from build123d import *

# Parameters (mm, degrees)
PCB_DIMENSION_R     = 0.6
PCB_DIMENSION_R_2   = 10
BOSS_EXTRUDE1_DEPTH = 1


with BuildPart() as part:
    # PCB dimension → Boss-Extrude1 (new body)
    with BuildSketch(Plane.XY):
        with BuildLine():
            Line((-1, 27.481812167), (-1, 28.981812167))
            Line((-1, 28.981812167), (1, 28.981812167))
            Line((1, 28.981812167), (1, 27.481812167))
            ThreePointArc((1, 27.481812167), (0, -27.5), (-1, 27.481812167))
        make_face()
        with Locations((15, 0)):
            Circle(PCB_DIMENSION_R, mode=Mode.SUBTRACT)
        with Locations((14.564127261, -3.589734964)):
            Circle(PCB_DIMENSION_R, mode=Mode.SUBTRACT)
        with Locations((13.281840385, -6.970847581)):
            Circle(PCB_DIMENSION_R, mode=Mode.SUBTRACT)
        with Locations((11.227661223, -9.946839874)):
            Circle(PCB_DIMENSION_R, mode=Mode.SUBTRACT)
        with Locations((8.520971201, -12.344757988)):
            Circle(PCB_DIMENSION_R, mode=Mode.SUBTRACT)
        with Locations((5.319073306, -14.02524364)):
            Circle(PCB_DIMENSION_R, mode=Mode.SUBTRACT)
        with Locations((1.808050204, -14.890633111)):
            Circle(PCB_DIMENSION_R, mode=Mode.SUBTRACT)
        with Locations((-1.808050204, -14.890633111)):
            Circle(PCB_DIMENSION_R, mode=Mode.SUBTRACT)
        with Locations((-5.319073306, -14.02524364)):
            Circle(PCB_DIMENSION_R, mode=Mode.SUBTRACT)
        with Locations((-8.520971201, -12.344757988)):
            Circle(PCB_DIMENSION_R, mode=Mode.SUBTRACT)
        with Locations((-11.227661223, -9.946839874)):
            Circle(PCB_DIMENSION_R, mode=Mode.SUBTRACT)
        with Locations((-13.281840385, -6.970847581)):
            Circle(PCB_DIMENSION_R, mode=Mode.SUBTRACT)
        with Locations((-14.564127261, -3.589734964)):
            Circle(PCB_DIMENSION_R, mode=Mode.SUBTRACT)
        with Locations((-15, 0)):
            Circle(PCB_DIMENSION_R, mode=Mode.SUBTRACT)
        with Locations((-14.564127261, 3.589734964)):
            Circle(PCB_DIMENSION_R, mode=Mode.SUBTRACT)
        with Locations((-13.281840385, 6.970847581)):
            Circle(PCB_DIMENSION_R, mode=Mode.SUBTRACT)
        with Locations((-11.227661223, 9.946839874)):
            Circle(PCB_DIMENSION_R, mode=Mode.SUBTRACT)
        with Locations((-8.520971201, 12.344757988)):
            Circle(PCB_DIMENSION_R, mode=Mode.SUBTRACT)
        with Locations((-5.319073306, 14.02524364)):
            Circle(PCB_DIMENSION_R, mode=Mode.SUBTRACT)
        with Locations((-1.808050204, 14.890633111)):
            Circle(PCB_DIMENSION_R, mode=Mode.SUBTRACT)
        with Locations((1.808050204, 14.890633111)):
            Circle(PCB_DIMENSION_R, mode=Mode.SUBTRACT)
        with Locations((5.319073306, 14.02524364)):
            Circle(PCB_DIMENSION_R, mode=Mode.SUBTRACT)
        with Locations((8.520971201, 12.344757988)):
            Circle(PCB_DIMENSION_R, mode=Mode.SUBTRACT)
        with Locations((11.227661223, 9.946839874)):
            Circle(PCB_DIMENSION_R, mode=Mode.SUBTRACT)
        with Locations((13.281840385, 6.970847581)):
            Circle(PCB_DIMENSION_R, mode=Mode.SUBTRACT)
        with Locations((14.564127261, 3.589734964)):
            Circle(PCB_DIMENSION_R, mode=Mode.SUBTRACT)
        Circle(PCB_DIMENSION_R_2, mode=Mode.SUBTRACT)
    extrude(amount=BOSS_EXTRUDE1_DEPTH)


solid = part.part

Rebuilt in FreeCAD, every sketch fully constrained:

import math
import FreeCAD as App
import Part
import Sketcher

V = App.Vector

doc = App.newDocument("Part")
params = doc.addObject("Spreadsheet::Sheet", "Params")
for row, (alias, value) in enumerate([
    ("sketch1_diameter", "20 mm"),
    ("sketch1_diameter2", "1.2 mm"),
    ("sketch1_radius", "27.5 mm"),
    ("sketch1_width", "2 mm"),
    ("sketch1_height", "1.5 mm"),
    ("pad1_length", "1 mm"),
], start=1):
    params.set(f"A{row}", alias)
    params.set(f"B{row}", "=" + value)
    params.setAlias(f"B{row}", alias)

body = doc.addObject("PartDesign::Body", "Body")

# Sketch on XY plane
sketch1 = body.newObject("Sketcher::SketchObject", "Sketch")
sketch1.AttachmentSupport = (doc.getObject("XY_Plane"), [""])
sketch1.MapMode = "FlatFace"
sketch1.addGeometry([
    Part.LineSegment(V(-1, 29, 0), V(-1, 27.5, 0)),  # 0
    Part.ArcOfCircle(Part.Circle(V(0, 0, 0), V(0, 0, 1), 27.5), math.radians(92), math.radians(448)),  # 1
    Part.LineSegment(V(1, 27.5, 0), V(1, 29, 0)),  # 2
    Part.LineSegment(V(1, 29, 0), V(-1, 29, 0)),  # 3
    Part.Circle(V(8.5, -12.3, 0), V(0, 0, 1), 0.6),  # 4
    Part.Circle(V(11.2, -9.9, 0), V(0, 0, 1), 0.6),  # 5
    Part.Circle(V(5.3, -14, 0), V(0, 0, 1), 0.6),  # 6
    Part.Circle(V(1.8, -14.9, 0), V(0, 0, 1), 0.6),  # 7
    Part.Circle(V(13.3, -7, 0), V(0, 0, 1), 0.6),  # 8
    Part.Circle(V(14.6, -3.6, 0), V(0, 0, 1), 0.6),  # 9
    Part.Circle(V(-1.8, -14.9, 0), V(0, 0, 1), 0.6),  # 10
    Part.Circle(V(-5.3, -14, 0), V(0, 0, 1), 0.6),  # 11
    Part.Circle(V(-8.5, -12.3, 0), V(0, 0, 1), 0.6),  # 12
    Part.Circle(V(-11.2, -9.9, 0), V(0, 0, 1), 0.6),  # 13
    Part.Circle(V(-13.3, -7, 0), V(0, 0, 1), 0.6),  # 14
    Part.Circle(V(-14.6, -3.6, 0), V(0, 0, 1), 0.6),  # 15
    Part.Circle(V(15, 0, 0), V(0, 0, 1), 0.6),  # 16
    Part.Circle(V(14.6, 3.6, 0), V(0, 0, 1), 0.6),  # 17
    Part.Circle(V(13.3, 7, 0), V(0, 0, 1), 0.6),  # 18
    Part.Circle(V(11.2, 9.9, 0), V(0, 0, 1), 0.6),  # 19
    Part.Circle(V(8.5, 12.3, 0), V(0, 0, 1), 0.6),  # 20
    Part.Circle(V(5.3, 14, 0), V(0, 0, 1), 0.6),  # 21
    Part.Circle(V(1.8, 14.9, 0), V(0, 0, 1), 0.6),  # 22
    Part.Circle(V(0, 0, 0), V(0, 0, 1), 10),  # 23
    Part.Circle(V(-15, 0, 0), V(0, 0, 1), 0.6),  # 24
    Part.Circle(V(-14.6, 3.6, 0), V(0, 0, 1), 0.6),  # 25
    Part.Circle(V(-13.3, 7, 0), V(0, 0, 1), 0.6),  # 26
    Part.Circle(V(-1.8, 14.9, 0), V(0, 0, 1), 0.6),  # 27
    Part.Circle(V(-5.3, 14, 0), V(0, 0, 1), 0.6),  # 28
    Part.Circle(V(-11.2, 9.9, 0), V(0, 0, 1), 0.6),  # 29
    Part.Circle(V(-8.5, 12.3, 0), V(0, 0, 1), 0.6),  # 30
], False)
sketch1.addConstraint([
    Sketcher.Constraint("Coincident", 0, 2, 1, 1),
    Sketcher.Constraint("Coincident", 1, 2, 2, 1),
    Sketcher.Constraint("Coincident", 2, 2, 3, 1),
    Sketcher.Constraint("Coincident", 3, 2, 0, 1),
    Sketcher.Constraint("Vertical", 0),
    Sketcher.Constraint("Vertical", 2),
    Sketcher.Constraint("Horizontal", 3),
    Sketcher.Constraint("Coincident", 1, 3, -1, 1),
    Sketcher.Constraint("Coincident", 23, 3, -1, 1),
    Sketcher.Constraint("Equal", 4, 5),
    Sketcher.Constraint("Equal", 5, 6),
    Sketcher.Constraint("Equal", 6, 7),
    Sketcher.Constraint("Equal", 7, 8),
    Sketcher.Constraint("Equal", 8, 9),
    Sketcher.Constraint("Equal", 9, 10),
    Sketcher.Constraint("Equal", 10, 11),
    Sketcher.Constraint("Equal", 11, 12),
    Sketcher.Constraint("Equal", 12, 13),
    Sketcher.Constraint("Equal", 13, 14),
    Sketcher.Constraint("Equal", 14, 15),
    Sketcher.Constraint("Equal", 15, 16),
    Sketcher.Constraint("Equal", 16, 17),
    Sketcher.Constraint("Equal", 17, 18),
    Sketcher.Constraint("Equal", 18, 19),
    Sketcher.Constraint("Equal", 19, 20),
    Sketcher.Constraint("Equal", 20, 21),
    Sketcher.Constraint("Equal", 21, 22),
    Sketcher.Constraint("Equal", 22, 24),
    Sketcher.Constraint("Equal", 24, 25),
    Sketcher.Constraint("Equal", 25, 26),
    Sketcher.Constraint("Equal", 26, 27),
    Sketcher.Constraint("Equal", 27, 28),
    Sketcher.Constraint("Equal", 28, 29),
    Sketcher.Constraint("Equal", 29, 30),
    Sketcher.Constraint("Symmetric", 15, 3, 17, 3, -1, 1),
    Sketcher.Constraint("Symmetric", 14, 3, 18, 3, -1, 1),
    Sketcher.Constraint("Symmetric", 13, 3, 19, 3, -1, 1),
    Sketcher.Constraint("Symmetric", 12, 3, 20, 3, -1, 1),
    Sketcher.Constraint("Symmetric", 11, 3, 21, 3, -1, 1),
    Sketcher.Constraint("Symmetric", 10, 3, 22, 3, -1, 1),
    Sketcher.Constraint("Symmetric", 16, 3, 24, 3, -1, 1),
    Sketcher.Constraint("Symmetric", 9, 3, 25, 3, -1, 1),
    Sketcher.Constraint("Symmetric", 8, 3, 26, 3, -1, 1),
    Sketcher.Constraint("Symmetric", 7, 3, 27, 3, -1, 1),
    Sketcher.Constraint("Symmetric", 6, 3, 28, 3, -1, 1),
    Sketcher.Constraint("Symmetric", 5, 3, 29, 3, -1, 1),
    Sketcher.Constraint("Symmetric", 4, 3, 30, 3, -1, 1),
    Sketcher.Constraint("Symmetric", 7, 3, 10, 3, -2),
    Sketcher.Constraint("Symmetric", 6, 3, 11, 3, -2),
    Sketcher.Constraint("Symmetric", 4, 3, 12, 3, -2),
    Sketcher.Constraint("Symmetric", 5, 3, 13, 3, -2),
    Sketcher.Constraint("Symmetric", 8, 3, 14, 3, -2),
    Sketcher.Constraint("Symmetric", 9, 3, 15, 3, -2),
    Sketcher.Constraint("PointOnObject", 16, 3, -1),
    Sketcher.Constraint("Horizontal", 0, 2, 1, 2),
    Sketcher.Constraint("Diameter", 23, 20.0),
    Sketcher.Constraint("Diameter", 4, 1.2),
    Sketcher.Constraint("Radius", 1, 27.5),
    Sketcher.Constraint("DistanceX", 3, 2, 3, 1, 2.0),
    Sketcher.Constraint("DistanceY", 0, 2, 0, 1, 1.5),
    Sketcher.Constraint("DistanceX", -1, 1, 16, 3, 15.0),
    Sketcher.Constraint("DistanceX", 10, 3, 7, 3, 3.6161),
    Sketcher.Constraint("DistanceX", -1, 1, 4, 3, 8.520971),
    Sketcher.Constraint("DistanceX", -1, 1, 5, 3, 11.227661),
    Sketcher.Constraint("DistanceY", 5, 3, -1, 1, 9.94684),
    Sketcher.Constraint("DistanceX", -1, 1, 8, 3, 13.28184),
    Sketcher.Constraint("DistanceY", 4, 3, 5, 3, 2.397918),
    Sketcher.Constraint("DistanceY", 7, 3, 6, 3, 0.865389),
    Sketcher.Constraint("DistanceY", 4, 3, 8, 3, 5.37391),
    Sketcher.Constraint("DistanceY", 6, 3, 9, 3, 10.435509),
    Sketcher.Constraint("DistanceY", 9, 3, 17, 3, 7.17947),
    Sketcher.Constraint("DistanceX", -1, 1, 6, 3, 5.319073),
    Sketcher.Constraint("DistanceX", -1, 1, 9, 3, 14.564127),
])
sketch1.setExpression("Constraints[55]", "Params.sketch1_diameter")
sketch1.setExpression("Constraints[56]", "Params.sketch1_diameter2")
sketch1.setExpression("Constraints[57]", "Params.sketch1_radius")
sketch1.setExpression("Constraints[58]", "Params.sketch1_width")
sketch1.setExpression("Constraints[59]", "Params.sketch1_height")
pad1 = body.newObject("PartDesign::Pad", "Pad")
pad1.Profile = sketch1
pad1.setExpression("Length", "Params.pad1_length")

doc.recompute()
